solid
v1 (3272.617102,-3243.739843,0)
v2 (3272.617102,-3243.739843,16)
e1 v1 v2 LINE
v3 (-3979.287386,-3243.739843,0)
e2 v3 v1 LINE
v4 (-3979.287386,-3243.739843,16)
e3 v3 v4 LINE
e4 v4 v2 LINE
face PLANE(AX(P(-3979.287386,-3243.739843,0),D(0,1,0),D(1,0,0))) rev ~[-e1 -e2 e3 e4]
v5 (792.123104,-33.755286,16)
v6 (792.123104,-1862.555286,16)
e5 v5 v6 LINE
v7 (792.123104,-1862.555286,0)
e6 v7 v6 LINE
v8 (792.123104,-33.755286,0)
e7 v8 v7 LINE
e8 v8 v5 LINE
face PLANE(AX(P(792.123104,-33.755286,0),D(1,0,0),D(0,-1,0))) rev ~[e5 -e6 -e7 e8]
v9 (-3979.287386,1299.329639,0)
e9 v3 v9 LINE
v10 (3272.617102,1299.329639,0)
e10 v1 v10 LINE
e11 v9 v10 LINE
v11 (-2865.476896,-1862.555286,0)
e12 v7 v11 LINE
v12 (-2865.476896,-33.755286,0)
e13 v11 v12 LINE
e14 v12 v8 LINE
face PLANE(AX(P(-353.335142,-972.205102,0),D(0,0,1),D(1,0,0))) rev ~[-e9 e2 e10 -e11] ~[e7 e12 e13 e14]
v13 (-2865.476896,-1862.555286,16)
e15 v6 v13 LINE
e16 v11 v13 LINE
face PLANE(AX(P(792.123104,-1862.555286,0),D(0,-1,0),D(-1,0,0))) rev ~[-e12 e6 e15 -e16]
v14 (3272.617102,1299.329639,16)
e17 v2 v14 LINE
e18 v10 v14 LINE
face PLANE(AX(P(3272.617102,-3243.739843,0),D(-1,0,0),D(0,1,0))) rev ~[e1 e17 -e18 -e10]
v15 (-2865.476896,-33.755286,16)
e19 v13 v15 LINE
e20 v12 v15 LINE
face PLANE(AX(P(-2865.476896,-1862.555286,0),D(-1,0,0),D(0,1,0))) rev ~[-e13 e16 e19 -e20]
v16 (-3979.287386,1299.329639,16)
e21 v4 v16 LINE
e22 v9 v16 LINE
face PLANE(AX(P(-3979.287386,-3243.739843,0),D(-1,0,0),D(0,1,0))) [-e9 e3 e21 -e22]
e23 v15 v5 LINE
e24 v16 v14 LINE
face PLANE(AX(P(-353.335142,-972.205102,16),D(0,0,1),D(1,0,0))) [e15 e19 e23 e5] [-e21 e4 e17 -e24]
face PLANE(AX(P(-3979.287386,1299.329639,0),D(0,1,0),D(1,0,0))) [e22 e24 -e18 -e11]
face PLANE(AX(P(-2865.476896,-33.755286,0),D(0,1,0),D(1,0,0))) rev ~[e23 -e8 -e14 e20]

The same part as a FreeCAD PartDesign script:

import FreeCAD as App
import Part
import Sketcher
from FreeCAD import Vector
Q = App.Units.Quantity

doc = App.newDocument("Part")
params = doc.addObject("Spreadsheet::Sheet", "Params")
for row, (alias, value) in enumerate([
    ("sketch1_width", "144 in"),
    ("sketch1_height", "72 in"),
    ("pad1_length", "16 mm"),
], start=1):
    params.set(f"A{row}", alias)
    params.set(f"B{row}", "=" + value)
    params.setAlias(f"B{row}", alias)

body = doc.addObject("PartDesign::Body", "Body")

sketch1 = doc.addObject("Sketcher::SketchObject", "Sketch")
body.addObject(sketch1)
sketch1.AttachmentSupport = (doc.XY_Plane, [""])
sketch1.MapMode = "FlatFace"
sketch1.addGeometry([
    Part.LineSegment(Vector(-3979, 1299, 0), Vector(-3979, -3244, 0)),
    Part.LineSegment(Vector(-3979, -3244, 0), Vector(3273, -3244, 0)),
    Part.LineSegment(Vector(3273, -3244, 0), Vector(3273, 1299, 0)),
    Part.LineSegment(Vector(3273, 1299, 0), Vector(-3979, 1299, 0)),
    Part.LineSegment(Vector(792, -1863, 0), Vector(-2865, -1863, 0)),
    Part.LineSegment(Vector(-2865, -1863, 0), Vector(-2865, -34, 0)),
    Part.LineSegment(Vector(-2865, -34, 0), Vector(792, -34, 0)),
    Part.LineSegment(Vector(792, -34, 0), Vector(792, -1863, 0)),
], False)
sketch1.addConstraint([
    Sketcher.Constraint("Coincident", 0, 2, 1, 1),
    Sketcher.Constraint("Coincident", 1, 2, 2, 1),
    Sketcher.Constraint("Coincident", 2, 2, 3, 1),
    Sketcher.Constraint("Coincident", 3, 2, 0, 1),
    Sketcher.Constraint("Coincident", 4, 2, 5, 1),
    Sketcher.Constraint("Coincident", 5, 2, 6, 1),
    Sketcher.Constraint("Coincident", 6, 2, 7, 1),
    Sketcher.Constraint("Coincident", 7, 2, 4, 1),
    Sketcher.Constraint("Vertical", 0),
    Sketcher.Constraint("Horizontal", 1),
    Sketcher.Constraint("Vertical", 2),
    Sketcher.Constraint("Horizontal", 3),
    Sketcher.Constraint("Horizontal", 4),
    Sketcher.Constraint("Vertical", 5),
    Sketcher.Constraint("Horizontal", 6),
    Sketcher.Constraint("Vertical", 7),
    Sketcher.Constraint("DistanceX", 4, 2, 4, 1, Q("144 in")),
    Sketcher.Constraint("DistanceY", 5, 1, 5, 2, Q("72 in")),
    Sketcher.Constraint("DistanceX", 1, 1, 1, 2, Q("7251.904488 mm")),
    Sketcher.Constraint("DistanceY", 0, 2, 0, 1, Q("4543.069481 mm")),
    Sketcher.Constraint("DistanceX", 4, 2, 1, 2, Q("6138.093998 mm")),
    Sketcher.Constraint("DistanceY", -1, 1, 2, 2, Q("1299.329639 mm")),
    Sketcher.Constraint("DistanceX", 0, 2, -1, 1, Q("3979.287386 mm")),
    Sketcher.Constraint("DistanceY", 4, 2, -1, 1, Q("1862.555286 mm")),
])
sketch1.setExpression("Constraints[16]", "Params.sketch1_width")
sketch1.setExpression("Constraints[17]", "Params.sketch1_height")
pad1 = doc.addObject("PartDesign::Pad", "Pad")
body.addObject(pad1)
pad1.Profile = sketch1
pad1.setExpression("Length", "Params.pad1_length")

doc.recompute()
